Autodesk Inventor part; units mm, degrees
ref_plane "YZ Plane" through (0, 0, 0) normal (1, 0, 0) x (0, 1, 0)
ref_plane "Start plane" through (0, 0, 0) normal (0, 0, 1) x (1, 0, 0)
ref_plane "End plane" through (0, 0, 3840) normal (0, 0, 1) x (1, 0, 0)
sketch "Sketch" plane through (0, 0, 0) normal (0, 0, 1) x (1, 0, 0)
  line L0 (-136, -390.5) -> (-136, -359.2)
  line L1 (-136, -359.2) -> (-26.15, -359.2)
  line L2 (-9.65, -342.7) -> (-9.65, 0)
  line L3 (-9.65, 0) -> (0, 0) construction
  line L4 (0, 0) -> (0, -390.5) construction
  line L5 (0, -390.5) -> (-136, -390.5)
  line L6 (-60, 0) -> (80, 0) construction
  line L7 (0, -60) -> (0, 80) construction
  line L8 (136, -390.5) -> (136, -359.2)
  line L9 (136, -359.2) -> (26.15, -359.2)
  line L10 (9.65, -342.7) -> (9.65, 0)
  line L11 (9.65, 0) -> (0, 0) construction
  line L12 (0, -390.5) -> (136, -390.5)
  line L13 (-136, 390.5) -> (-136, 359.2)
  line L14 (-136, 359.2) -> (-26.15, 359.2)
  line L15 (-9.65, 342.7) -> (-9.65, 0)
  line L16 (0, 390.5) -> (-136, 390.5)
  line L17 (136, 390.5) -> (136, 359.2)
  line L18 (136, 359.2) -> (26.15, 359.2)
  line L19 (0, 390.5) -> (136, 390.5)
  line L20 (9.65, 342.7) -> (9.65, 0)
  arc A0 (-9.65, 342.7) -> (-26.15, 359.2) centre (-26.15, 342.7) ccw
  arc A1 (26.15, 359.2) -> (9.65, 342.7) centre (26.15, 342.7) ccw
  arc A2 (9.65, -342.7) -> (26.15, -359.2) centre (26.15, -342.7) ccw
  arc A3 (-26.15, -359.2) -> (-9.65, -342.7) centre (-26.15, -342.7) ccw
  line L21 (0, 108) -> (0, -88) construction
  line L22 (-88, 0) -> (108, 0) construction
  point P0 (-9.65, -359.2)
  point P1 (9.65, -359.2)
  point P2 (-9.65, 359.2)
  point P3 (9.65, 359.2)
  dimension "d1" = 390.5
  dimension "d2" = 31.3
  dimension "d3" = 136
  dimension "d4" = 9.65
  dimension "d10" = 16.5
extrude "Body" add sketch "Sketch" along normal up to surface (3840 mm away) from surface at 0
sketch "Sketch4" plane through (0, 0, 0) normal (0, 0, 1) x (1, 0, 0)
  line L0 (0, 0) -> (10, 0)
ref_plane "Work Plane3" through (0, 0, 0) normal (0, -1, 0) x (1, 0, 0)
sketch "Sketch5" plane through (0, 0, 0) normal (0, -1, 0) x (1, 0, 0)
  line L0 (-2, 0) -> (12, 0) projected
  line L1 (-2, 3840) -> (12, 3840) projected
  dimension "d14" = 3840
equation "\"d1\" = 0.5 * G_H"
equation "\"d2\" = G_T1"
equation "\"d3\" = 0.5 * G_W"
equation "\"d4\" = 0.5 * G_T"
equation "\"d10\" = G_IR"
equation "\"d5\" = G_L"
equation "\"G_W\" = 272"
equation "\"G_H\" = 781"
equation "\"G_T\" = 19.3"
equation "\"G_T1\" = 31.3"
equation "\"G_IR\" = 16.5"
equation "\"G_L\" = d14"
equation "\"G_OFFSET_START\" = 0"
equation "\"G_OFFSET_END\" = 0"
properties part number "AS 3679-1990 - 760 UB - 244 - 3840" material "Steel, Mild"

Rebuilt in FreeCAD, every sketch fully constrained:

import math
import FreeCAD as App
import Part
import Sketcher
from FreeCAD import Vector
Q = App.Units.Quantity

doc = App.newDocument("Part")
params = doc.addObject("Spreadsheet::Sheet", "Params")
for row, (alias, value) in enumerate([
    ("sketch1_radius", "16.5 mm"),
    ("sketch1_height", "31.3 mm"),
    ("pad1_length", "3840 mm"),
], start=1):
    params.set(f"A{row}", alias)
    params.set(f"B{row}", "=" + value)
    params.setAlias(f"B{row}", alias)

body = doc.addObject("PartDesign::Body", "Body")

sketch1 = body.newObject("Sketcher::SketchObject", "Sketch")
sketch1.AttachmentSupport = (doc.getObject("XY_Plane"), [""])
sketch1.MapMode = "FlatFace"
sketch1.addGeometry([
    Part.LineSegment(Vector(-136, -359, 0), Vector(-136, -390, 0)),
    Part.LineSegment(Vector(-136, -390, 0), Vector(136, -390, 0)),
    Part.LineSegment(Vector(136, -390, 0), Vector(136, -359, 0)),
    Part.LineSegment(Vector(136, -359, 0), Vector(26, -359, 0)),
    Part.ArcOfCircle(Part.Circle(Vector(26, -343, 0), Vector(0, 0, 1), 16), math.radians(180), math.radians(270)),
    Part.LineSegment(Vector(10, -343, 0), Vector(10, 343, 0)),
    Part.ArcOfCircle(Part.Circle(Vector(26, 343, 0), Vector(0, 0, 1), 16), math.radians(90), math.radians(180)),
    Part.LineSegment(Vector(26, 359, 0), Vector(136, 359, 0)),
    Part.LineSegment(Vector(136, 359, 0), Vector(136, 390, 0)),
    Part.LineSegment(Vector(136, 390, 0), Vector(-136, 390, 0)),
    Part.LineSegment(Vector(-136, 390, 0), Vector(-136, 359, 0)),
    Part.LineSegment(Vector(-136, 359, 0), Vector(-26, 359, 0)),
    Part.ArcOfCircle(Part.Circle(Vector(-26, 343, 0), Vector(0, 0, 1), 16), math.radians(0), math.radians(90)),
    Part.LineSegment(Vector(-10, 343, 0), Vector(-10, -343, 0)),
    Part.ArcOfCircle(Part.Circle(Vector(-26, -343, 0), Vector(0, 0, 1), 16), math.radians(-90), math.radians(0)),
    Part.LineSegment(Vector(-26, -359, 0), Vector(-136, -359, 0)),
], False)
sketch1.addConstraint([
    Sketcher.Constraint("Coincident", 0, 2, 1, 1),
    Sketcher.Constraint("Coincident", 1, 2, 2, 1),
    Sketcher.Constraint("Coincident", 2, 2, 3, 1),
    Sketcher.Constraint("Tangent", 3, 2, 4, 2),
    Sketcher.Constraint("Tangent", 4, 1, 5, 1),
    Sketcher.Constraint("Tangent", 5, 2, 6, 2),
    Sketcher.Constraint("Tangent", 6, 1, 7, 1),
    Sketcher.Constraint("Coincident", 7, 2, 8, 1),
    Sketcher.Constraint("Coincident", 8, 2, 9, 1),
    Sketcher.Constraint("Coincident", 9, 2, 10, 1),
    Sketcher.Constraint("Coincident", 10, 2, 11, 1),
    Sketcher.Constraint("Tangent", 11, 2, 12, 2),
    Sketcher.Constraint("Tangent", 12, 1, 13, 1),
    Sketcher.Constraint("Tangent", 13, 2, 14, 2),
    Sketcher.Constraint("Tangent", 14, 1, 15, 1),
    Sketcher.Constraint("Coincident", 15, 2, 0, 1),
    Sketcher.Constraint("Vertical", 0),
    Sketcher.Constraint("Horizontal", 1),
    Sketcher.Constraint("Vertical", 2),
    Sketcher.Constraint("Horizontal", 3),
    Sketcher.Constraint("Vertical", 5),
    Sketcher.Constraint("Horizontal", 7),
    Sketcher.Constraint("Vertical", 8),
    Sketcher.Constraint("Horizontal", 9),
    Sketcher.Constraint("Vertical", 10),
    Sketcher.Constraint("Horizontal", 11),
    Sketcher.Constraint("Vertical", 13),
    Sketcher.Constraint("Horizontal", 15),
    Sketcher.Constraint("Equal", 4, 6),
    Sketcher.Constraint("Equal", 6, 12),
    Sketcher.Constraint("Equal", 12, 14),
    Sketcher.Constraint("Symmetric", 4, 3, 12, 3, -1, 1),
    Sketcher.Constraint("Symmetric", 0, 2, 8, 2, -1, 1),
    Sketcher.Constraint("Symmetric", 7, 2, 10, 2, -2),
    Sketcher.Constraint("Symmetric", 2, 2, 15, 2, -2),
    Sketcher.Constraint("Radius", 4, Q("16.5 mm")),
    Sketcher.Constraint("DistanceY", 0, 2, 0, 1, Q("31.3 mm")),
    Sketcher.Constraint("DistanceX", 0, 2, -1, 1, Q("136 mm")),
    Sketcher.Constraint("DistanceY", 0, 2, -1, 1, Q("390.5 mm")),
    Sketcher.Constraint("DistanceX", -1, 1, 4, 1, Q("9.65 mm")),
])
sketch1.setExpression("Constraints[35]", "Params.sketch1_radius")
sketch1.setExpression("Constraints[36]", "Params.sketch1_height")
pad1 = body.newObject("PartDesign::Pad", "Pad")
pad1.Profile = sketch1
pad1.setExpression("Length", "Params.pad1_length")

doc.recompute()
